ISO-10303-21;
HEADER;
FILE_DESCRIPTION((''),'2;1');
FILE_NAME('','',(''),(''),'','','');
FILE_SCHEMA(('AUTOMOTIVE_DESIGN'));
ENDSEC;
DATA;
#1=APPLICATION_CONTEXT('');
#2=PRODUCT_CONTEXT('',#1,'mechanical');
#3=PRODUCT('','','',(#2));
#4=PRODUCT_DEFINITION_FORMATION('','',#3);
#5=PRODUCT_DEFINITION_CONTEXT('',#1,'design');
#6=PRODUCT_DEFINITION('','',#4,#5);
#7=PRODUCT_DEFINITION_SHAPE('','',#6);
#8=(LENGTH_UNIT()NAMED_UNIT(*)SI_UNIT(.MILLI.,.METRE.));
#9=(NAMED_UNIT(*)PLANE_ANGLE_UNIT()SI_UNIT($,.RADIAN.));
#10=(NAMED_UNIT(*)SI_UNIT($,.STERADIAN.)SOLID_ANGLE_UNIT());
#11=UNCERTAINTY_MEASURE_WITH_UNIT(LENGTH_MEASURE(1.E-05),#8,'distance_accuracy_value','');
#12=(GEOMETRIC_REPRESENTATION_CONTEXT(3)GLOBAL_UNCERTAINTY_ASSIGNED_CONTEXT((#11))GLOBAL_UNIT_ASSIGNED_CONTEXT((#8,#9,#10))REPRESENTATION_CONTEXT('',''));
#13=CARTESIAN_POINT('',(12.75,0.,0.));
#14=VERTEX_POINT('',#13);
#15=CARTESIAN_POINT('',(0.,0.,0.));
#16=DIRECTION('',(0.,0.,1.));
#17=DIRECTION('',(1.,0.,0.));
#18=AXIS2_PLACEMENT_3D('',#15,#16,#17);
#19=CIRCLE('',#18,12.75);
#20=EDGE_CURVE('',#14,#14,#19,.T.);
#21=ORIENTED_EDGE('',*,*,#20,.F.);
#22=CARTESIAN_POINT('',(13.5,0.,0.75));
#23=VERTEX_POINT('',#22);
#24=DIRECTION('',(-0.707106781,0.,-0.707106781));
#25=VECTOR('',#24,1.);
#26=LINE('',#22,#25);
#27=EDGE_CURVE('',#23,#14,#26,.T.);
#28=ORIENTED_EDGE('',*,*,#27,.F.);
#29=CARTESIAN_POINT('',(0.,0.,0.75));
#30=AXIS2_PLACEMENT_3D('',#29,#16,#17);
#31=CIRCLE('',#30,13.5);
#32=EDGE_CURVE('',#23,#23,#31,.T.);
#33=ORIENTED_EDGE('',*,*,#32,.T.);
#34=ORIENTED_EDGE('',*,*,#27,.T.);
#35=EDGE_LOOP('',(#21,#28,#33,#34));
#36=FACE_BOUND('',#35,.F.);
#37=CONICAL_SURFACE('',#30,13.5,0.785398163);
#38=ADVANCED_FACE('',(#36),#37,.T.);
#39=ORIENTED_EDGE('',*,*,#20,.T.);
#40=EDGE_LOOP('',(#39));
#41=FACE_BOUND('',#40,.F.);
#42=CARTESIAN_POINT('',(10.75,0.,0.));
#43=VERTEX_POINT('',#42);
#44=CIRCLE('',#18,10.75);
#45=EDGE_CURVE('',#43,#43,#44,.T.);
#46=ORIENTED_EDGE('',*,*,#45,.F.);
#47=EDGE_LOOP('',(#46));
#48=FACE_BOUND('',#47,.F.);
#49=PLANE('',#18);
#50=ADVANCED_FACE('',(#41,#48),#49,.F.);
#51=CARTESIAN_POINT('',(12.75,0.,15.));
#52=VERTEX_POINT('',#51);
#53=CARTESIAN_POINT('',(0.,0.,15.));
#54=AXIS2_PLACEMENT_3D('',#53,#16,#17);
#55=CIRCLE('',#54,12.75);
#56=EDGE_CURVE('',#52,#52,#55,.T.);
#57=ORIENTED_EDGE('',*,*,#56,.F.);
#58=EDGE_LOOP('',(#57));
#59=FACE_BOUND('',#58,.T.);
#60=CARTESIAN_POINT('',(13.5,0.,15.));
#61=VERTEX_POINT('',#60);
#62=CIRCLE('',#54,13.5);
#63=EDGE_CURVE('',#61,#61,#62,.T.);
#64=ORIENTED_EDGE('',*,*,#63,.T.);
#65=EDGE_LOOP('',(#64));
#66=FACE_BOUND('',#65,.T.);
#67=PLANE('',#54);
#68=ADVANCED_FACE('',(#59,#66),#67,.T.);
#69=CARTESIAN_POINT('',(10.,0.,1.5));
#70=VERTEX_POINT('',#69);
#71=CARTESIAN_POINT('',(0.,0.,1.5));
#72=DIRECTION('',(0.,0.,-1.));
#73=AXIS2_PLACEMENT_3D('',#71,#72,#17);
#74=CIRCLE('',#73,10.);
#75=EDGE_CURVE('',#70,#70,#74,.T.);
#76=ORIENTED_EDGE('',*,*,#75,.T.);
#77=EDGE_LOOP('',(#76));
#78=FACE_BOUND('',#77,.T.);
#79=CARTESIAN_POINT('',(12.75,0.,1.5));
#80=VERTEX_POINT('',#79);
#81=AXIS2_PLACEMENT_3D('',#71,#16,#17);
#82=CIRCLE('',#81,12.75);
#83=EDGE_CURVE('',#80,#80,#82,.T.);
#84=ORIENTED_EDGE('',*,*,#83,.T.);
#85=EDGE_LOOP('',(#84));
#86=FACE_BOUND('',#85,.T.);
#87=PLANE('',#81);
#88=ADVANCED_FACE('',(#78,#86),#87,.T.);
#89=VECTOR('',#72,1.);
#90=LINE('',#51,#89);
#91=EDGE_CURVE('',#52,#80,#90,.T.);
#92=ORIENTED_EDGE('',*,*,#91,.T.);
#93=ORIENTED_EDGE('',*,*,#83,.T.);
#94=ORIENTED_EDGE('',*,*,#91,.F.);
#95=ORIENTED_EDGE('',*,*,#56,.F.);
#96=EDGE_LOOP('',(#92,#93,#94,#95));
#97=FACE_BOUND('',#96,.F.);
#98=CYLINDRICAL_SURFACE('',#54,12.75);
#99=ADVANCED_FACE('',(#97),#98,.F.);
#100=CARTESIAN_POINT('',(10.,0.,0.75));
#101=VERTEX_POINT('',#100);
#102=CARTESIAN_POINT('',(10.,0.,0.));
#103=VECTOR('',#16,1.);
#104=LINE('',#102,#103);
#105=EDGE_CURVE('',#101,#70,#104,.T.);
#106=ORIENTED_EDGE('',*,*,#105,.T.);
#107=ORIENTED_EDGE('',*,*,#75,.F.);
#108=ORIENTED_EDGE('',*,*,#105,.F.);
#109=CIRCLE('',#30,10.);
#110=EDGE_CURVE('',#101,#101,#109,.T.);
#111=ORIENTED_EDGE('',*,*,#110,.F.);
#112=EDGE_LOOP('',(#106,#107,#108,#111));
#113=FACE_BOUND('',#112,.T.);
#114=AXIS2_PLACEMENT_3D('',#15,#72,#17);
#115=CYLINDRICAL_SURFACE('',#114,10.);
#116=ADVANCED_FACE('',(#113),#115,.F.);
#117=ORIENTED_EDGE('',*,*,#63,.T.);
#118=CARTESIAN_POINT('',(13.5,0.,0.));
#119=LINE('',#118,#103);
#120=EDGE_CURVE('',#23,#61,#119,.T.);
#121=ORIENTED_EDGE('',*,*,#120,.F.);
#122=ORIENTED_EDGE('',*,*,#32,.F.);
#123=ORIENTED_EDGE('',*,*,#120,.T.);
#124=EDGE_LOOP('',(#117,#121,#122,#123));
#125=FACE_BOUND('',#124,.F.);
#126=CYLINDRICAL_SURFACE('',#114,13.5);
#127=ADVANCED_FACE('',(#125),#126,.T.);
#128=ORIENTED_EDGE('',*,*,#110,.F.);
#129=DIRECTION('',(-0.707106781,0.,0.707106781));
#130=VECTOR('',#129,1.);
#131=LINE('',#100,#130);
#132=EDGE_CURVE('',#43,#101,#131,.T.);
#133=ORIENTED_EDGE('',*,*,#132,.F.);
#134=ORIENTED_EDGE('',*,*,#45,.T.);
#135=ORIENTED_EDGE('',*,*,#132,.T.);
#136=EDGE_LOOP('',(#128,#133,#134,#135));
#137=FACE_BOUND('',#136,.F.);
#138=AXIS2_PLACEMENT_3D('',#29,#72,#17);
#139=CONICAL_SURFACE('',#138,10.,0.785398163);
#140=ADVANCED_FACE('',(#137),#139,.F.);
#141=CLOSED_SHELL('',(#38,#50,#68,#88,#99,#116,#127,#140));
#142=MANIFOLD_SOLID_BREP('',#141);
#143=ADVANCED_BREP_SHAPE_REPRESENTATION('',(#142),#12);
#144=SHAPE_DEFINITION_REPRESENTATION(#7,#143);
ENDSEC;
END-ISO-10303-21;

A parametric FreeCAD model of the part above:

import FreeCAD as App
import Part
import Sketcher
from FreeCAD import Vector
Q = App.Units.Quantity


def edges_at(feature, points):
    """Names of the edges that pass closest to the given points."""
    edges = feature.Shape.Edges
    near = lambda p: min(range(len(edges)), key=lambda i: edges[i].distToShape(Part.Vertex(*p))[0])
    return sorted({f"Edge{near(p) + 1}" for p in points})

doc = App.newDocument("Part")
body = doc.addObject("PartDesign::Body", "Body")

sketch1 = body.newObject("Sketcher::SketchObject", "Sketch")
sketch1.AttachmentSupport = (doc.getObject("XY_Plane"), [""])
sketch1.MapMode = "FlatFace"
sketch1.addGeometry([
    Part.Circle(Vector(0, 0, 0), Vector(0, 0, 1), 14),
    Part.Circle(Vector(0, 0, 0), Vector(0, 0, 1), 10),
], False)
sketch1.addConstraint([
    Sketcher.Constraint("Coincident", 0, 3, -1, 1),
    Sketcher.Constraint("Coincident", 1, 3, -1, 1),
    Sketcher.Constraint("Diameter", 0, Q("27 mm")),
    Sketcher.Constraint("Diameter", 1, Q("20 mm")),
])
pad1 = body.newObject("PartDesign::Pad", "Pad")
pad1.Profile = sketch1
pad1.Length = 15

sketch2 = body.newObject("Sketcher::SketchObject", "Sketch001")
sketch2.AttachmentSupport = (doc.getObject("XY_Plane"), [""])
sketch2.MapMode = "FlatFace"
sketch2.AttachmentOffset = App.Placement(Vector(0, 0, 15), App.Rotation())
sketch2.addGeometry(Part.Circle(Vector(0, 0, 0), Vector(0, 0, 1), 13), False)
sketch2.addConstraint([
    Sketcher.Constraint("Coincident", 0, 3, -1, 1),
    Sketcher.Constraint("Diameter", 0, Q("25.5 mm")),
])
pocket1 = body.newObject("PartDesign::Pocket", "Pocket")
pocket1.Profile = sketch2
pocket1.Length = 13.5
doc.recompute()

chamfer = body.newObject("PartDesign::Chamfer", "Chamfer")
chamfer.Base = (pocket1, edges_at(pocket1, [(-13.5, 0, 0), (-10, 0, 0)]))
chamfer.Size = 0.75

doc.recompute()
